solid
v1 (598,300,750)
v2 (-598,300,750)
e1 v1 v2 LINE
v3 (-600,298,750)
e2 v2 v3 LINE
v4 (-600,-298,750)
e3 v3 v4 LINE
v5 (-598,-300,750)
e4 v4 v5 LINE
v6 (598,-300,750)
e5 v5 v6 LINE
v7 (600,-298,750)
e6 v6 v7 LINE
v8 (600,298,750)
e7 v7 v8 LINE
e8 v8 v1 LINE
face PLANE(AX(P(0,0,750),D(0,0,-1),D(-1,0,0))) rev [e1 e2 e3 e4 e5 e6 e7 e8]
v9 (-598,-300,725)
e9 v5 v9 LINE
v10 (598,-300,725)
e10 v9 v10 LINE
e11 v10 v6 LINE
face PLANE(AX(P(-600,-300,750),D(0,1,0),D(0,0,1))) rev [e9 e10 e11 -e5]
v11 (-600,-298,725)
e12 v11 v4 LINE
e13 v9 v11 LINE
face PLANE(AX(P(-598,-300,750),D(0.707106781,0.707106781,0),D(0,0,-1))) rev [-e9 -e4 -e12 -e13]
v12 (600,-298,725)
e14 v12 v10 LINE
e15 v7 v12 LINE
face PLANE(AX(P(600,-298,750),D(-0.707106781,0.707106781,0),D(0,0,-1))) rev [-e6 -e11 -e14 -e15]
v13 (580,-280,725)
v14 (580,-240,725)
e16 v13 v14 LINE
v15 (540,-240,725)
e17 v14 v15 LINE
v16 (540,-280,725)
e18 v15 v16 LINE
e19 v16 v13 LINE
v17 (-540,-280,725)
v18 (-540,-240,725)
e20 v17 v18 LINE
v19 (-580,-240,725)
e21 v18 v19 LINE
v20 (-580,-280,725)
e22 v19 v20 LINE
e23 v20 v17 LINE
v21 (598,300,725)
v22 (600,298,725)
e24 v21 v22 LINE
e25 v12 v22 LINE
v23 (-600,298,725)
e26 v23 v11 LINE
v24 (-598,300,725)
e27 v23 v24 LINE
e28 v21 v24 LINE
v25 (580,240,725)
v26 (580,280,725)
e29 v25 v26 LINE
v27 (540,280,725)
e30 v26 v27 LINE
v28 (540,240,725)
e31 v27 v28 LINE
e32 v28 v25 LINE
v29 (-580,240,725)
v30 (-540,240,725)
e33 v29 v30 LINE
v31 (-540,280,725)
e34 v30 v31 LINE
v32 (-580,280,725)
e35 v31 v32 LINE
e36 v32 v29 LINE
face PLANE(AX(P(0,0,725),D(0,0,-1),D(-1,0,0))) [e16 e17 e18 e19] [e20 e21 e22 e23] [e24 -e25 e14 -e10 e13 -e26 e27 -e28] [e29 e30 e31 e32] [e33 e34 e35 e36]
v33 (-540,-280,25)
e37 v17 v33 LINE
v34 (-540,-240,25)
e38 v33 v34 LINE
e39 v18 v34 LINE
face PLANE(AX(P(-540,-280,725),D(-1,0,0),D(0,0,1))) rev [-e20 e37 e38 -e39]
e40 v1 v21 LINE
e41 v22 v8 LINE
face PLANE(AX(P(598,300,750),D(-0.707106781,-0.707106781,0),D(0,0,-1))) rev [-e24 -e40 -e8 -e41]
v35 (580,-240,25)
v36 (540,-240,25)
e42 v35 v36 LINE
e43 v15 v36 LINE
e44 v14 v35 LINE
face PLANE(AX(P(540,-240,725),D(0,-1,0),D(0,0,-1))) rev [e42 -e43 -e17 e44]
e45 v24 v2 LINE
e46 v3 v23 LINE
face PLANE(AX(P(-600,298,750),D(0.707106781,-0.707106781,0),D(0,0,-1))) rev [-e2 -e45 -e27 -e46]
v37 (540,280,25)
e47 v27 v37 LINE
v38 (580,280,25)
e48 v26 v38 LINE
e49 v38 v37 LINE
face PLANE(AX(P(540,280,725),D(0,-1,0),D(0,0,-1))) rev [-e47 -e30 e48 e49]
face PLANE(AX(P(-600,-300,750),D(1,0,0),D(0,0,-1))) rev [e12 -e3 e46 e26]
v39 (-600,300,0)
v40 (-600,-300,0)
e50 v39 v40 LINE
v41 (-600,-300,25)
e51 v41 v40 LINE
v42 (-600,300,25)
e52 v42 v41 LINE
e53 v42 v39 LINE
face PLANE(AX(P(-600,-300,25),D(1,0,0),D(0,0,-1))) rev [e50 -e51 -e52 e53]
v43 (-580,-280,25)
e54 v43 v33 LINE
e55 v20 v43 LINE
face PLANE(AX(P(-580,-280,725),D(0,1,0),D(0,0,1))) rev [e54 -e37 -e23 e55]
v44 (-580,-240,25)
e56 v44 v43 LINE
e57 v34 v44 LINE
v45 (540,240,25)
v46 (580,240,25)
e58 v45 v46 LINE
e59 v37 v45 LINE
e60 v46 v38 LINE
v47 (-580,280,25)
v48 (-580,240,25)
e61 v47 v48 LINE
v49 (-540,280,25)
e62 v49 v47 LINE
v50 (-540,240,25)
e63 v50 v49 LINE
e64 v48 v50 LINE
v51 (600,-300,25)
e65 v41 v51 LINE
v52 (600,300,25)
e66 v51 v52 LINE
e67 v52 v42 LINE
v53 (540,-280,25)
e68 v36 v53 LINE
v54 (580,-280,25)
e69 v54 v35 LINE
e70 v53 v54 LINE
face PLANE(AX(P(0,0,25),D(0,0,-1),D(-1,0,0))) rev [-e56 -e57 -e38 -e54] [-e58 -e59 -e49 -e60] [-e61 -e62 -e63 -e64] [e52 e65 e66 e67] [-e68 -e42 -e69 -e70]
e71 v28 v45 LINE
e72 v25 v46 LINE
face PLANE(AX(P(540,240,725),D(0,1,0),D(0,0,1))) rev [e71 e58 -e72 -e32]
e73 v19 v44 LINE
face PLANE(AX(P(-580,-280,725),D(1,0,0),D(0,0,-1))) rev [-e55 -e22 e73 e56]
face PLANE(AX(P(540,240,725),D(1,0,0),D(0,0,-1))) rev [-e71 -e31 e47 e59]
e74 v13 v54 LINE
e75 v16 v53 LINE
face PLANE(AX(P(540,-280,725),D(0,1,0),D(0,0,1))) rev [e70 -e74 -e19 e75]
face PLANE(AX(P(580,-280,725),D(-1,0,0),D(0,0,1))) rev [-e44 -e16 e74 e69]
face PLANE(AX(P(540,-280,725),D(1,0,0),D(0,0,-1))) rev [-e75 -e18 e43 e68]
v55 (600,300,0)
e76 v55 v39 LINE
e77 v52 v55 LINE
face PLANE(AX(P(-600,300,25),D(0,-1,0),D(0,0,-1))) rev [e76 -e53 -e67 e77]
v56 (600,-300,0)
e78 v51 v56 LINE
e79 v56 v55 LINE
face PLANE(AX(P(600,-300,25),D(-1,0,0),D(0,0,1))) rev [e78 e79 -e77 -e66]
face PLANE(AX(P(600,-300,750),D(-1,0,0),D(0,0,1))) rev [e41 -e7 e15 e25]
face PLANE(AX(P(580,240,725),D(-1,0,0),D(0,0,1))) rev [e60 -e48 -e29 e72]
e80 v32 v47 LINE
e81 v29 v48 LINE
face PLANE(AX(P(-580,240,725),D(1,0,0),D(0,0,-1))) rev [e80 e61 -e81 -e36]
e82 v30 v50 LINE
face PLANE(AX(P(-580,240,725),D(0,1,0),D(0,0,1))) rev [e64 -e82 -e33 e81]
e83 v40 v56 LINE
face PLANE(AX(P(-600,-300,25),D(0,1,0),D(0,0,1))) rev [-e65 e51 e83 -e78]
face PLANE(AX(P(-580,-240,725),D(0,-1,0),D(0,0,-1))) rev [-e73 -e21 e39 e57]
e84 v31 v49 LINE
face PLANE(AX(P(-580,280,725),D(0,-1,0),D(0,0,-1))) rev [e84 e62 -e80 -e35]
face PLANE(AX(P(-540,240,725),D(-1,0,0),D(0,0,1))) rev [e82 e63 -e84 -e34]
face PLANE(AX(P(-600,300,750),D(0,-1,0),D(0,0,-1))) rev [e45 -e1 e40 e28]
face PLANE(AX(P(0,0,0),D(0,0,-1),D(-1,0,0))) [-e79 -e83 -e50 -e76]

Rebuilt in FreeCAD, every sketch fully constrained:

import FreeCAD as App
import Part
import Sketcher
from FreeCAD import Vector
Q = App.Units.Quantity


def edges_at(feature, points):
    """Names of the edges that pass closest to the given points."""
    edges = feature.Shape.Edges
    near = lambda p: min(range(len(edges)), key=lambda i: edges[i].distToShape(Part.Vertex(*p))[0])
    return sorted({f"Edge{near(p) + 1}" for p in points})


def add_polygon(sketch, points):
    """Adds a closed chain of lines whose ends are joined by coincident constraints."""
    first, n = sketch.GeometryCount, len(points)
    for a, b in zip(points, points[1:] + points[:1]):
        sketch.addGeometry(Part.LineSegment(App.Vector(*a, 0), App.Vector(*b, 0)), False)
    for i in range(n):
        sketch.addConstraint(Sketcher.Constraint("Coincident", first + i, 2, first + (i + 1) % n, 1))

doc = App.newDocument("Part")
body = doc.addObject("PartDesign::Body", "Body")

# Sketch on XY plane
sketch1 = body.newObject("Sketcher::SketchObject", "Sketch")
sketch1.AttachmentSupport = (doc.getObject("XY_Plane"), [""])
sketch1.MapMode = "FlatFace"
add_polygon(sketch1, [(-600, 300), (-600, -300), (600, -300), (600, 300)])  # lines 0-3
sketch1.addConstraint([
    Sketcher.Constraint("Vertical", 0),
    Sketcher.Constraint("Horizontal", 1),
    Sketcher.Constraint("Vertical", 2),
    Sketcher.Constraint("Horizontal", 3),
    Sketcher.Constraint("Symmetric", 0, 2, 2, 2, -1, 1),
    Sketcher.Constraint("DistanceX", 1, 1, 1, 2, Q("1200 mm")),
    Sketcher.Constraint("DistanceY", 0, 2, 0, 1, Q("600 mm")),
])
pad1 = body.newObject("PartDesign::Pad", "Pad")
pad1.Profile = sketch1
pad1.Length = 25

# Sketch on XY plane
sketch2 = body.newObject("Sketcher::SketchObject", "Sketch001")
sketch2.AttachmentSupport = (doc.getObject("XY_Plane"), [""])
sketch2.MapMode = "FlatFace"
add_polygon(sketch2, [(-580, -240), (-580, -280), (-540, -280), (-540, -240)])  # lines 0-3
add_polygon(sketch2, [(540, -240), (540, -280), (580, -280), (580, -240)])  # lines 4-7
add_polygon(sketch2, [(540, 280), (540, 240), (580, 240), (580, 280)])  # lines 8-11
add_polygon(sketch2, [(-580, 280), (-580, 240), (-540, 240), (-540, 280)])  # lines 12-15
sketch2.addConstraint([
    Sketcher.Constraint("Vertical", 0),
    Sketcher.Constraint("Horizontal", 1),
    Sketcher.Constraint("Vertical", 2),
    Sketcher.Constraint("Horizontal", 3),
    Sketcher.Constraint("Vertical", 4),
    Sketcher.Constraint("Horizontal", 5),
    Sketcher.Constraint("Vertical", 6),
    Sketcher.Constraint("Horizontal", 7),
    Sketcher.Constraint("Vertical", 8),
    Sketcher.Constraint("Horizontal", 9),
    Sketcher.Constraint("Vertical", 10),
    Sketcher.Constraint("Horizontal", 11),
    Sketcher.Constraint("Vertical", 12),
    Sketcher.Constraint("Horizontal", 13),
    Sketcher.Constraint("Vertical", 14),
    Sketcher.Constraint("Horizontal", 15),
    Sketcher.Constraint("Symmetric", 2, 2, 8, 2, -1, 1),
    Sketcher.Constraint("Symmetric", 0, 2, 10, 2, -1, 1),
    Sketcher.Constraint("Symmetric", 6, 2, 12, 2, -1, 1),
    Sketcher.Constraint("Symmetric", 4, 2, 14, 2, -1, 1),
    Sketcher.Constraint("Symmetric", 1, 2, 4, 2, -2),
    Sketcher.Constraint("Symmetric", 3, 2, 6, 2, -2),
    Sketcher.Constraint("Equal", 15, 0),
    Sketcher.Constraint("DistanceX", 1, 1, 1, 2, Q("40 mm")),
    Sketcher.Constraint("DistanceX", 0, 2, -1, 1, Q("580 mm")),
    Sketcher.Constraint("DistanceY", 0, 2, -1, 1, Q("280 mm")),
])
pad2 = body.newObject("PartDesign::Pad", "Pad001")
pad2.Profile = sketch2
pad2.Length = 725

# Sketch on XY plane
sketch3 = body.newObject("Sketcher::SketchObject", "Sketch002")
sketch3.AttachmentSupport = (doc.getObject("XY_Plane"), [""])
sketch3.MapMode = "FlatFace"
sketch3.AttachmentOffset = App.Placement(Vector(0, 0, 725), App.Rotation())
add_polygon(sketch3, [(-600, 300), (-600, -300), (600, -300), (600, 300)])  # lines 0-3
sketch3.addConstraint([
    Sketcher.Constraint("Vertical", 0),
    Sketcher.Constraint("Horizontal", 1),
    Sketcher.Constraint("Vertical", 2),
    Sketcher.Constraint("Horizontal", 3),
    Sketcher.Constraint("Symmetric", 0, 2, 2, 2, -1, 1),
    Sketcher.Constraint("DistanceX", 1, 1, 1, 2, Q("1200 mm")),
    Sketcher.Constraint("DistanceY", 0, 2, 0, 1, Q("600 mm")),
])
pad3 = body.newObject("PartDesign::Pad", "Pad002")
pad3.Profile = sketch3
pad3.Length = 25
doc.recompute()

chamfer = body.newObject("PartDesign::Chamfer", "Chamfer")
chamfer.Base = (pad3, edges_at(pad3, [
    (600, -300, 737.5),
    (600, 300, 737.5),
    (-600, 300, 737.5),
    (-600, -300, 737.5),
]))
chamfer.Size = 2

doc.recompute()
